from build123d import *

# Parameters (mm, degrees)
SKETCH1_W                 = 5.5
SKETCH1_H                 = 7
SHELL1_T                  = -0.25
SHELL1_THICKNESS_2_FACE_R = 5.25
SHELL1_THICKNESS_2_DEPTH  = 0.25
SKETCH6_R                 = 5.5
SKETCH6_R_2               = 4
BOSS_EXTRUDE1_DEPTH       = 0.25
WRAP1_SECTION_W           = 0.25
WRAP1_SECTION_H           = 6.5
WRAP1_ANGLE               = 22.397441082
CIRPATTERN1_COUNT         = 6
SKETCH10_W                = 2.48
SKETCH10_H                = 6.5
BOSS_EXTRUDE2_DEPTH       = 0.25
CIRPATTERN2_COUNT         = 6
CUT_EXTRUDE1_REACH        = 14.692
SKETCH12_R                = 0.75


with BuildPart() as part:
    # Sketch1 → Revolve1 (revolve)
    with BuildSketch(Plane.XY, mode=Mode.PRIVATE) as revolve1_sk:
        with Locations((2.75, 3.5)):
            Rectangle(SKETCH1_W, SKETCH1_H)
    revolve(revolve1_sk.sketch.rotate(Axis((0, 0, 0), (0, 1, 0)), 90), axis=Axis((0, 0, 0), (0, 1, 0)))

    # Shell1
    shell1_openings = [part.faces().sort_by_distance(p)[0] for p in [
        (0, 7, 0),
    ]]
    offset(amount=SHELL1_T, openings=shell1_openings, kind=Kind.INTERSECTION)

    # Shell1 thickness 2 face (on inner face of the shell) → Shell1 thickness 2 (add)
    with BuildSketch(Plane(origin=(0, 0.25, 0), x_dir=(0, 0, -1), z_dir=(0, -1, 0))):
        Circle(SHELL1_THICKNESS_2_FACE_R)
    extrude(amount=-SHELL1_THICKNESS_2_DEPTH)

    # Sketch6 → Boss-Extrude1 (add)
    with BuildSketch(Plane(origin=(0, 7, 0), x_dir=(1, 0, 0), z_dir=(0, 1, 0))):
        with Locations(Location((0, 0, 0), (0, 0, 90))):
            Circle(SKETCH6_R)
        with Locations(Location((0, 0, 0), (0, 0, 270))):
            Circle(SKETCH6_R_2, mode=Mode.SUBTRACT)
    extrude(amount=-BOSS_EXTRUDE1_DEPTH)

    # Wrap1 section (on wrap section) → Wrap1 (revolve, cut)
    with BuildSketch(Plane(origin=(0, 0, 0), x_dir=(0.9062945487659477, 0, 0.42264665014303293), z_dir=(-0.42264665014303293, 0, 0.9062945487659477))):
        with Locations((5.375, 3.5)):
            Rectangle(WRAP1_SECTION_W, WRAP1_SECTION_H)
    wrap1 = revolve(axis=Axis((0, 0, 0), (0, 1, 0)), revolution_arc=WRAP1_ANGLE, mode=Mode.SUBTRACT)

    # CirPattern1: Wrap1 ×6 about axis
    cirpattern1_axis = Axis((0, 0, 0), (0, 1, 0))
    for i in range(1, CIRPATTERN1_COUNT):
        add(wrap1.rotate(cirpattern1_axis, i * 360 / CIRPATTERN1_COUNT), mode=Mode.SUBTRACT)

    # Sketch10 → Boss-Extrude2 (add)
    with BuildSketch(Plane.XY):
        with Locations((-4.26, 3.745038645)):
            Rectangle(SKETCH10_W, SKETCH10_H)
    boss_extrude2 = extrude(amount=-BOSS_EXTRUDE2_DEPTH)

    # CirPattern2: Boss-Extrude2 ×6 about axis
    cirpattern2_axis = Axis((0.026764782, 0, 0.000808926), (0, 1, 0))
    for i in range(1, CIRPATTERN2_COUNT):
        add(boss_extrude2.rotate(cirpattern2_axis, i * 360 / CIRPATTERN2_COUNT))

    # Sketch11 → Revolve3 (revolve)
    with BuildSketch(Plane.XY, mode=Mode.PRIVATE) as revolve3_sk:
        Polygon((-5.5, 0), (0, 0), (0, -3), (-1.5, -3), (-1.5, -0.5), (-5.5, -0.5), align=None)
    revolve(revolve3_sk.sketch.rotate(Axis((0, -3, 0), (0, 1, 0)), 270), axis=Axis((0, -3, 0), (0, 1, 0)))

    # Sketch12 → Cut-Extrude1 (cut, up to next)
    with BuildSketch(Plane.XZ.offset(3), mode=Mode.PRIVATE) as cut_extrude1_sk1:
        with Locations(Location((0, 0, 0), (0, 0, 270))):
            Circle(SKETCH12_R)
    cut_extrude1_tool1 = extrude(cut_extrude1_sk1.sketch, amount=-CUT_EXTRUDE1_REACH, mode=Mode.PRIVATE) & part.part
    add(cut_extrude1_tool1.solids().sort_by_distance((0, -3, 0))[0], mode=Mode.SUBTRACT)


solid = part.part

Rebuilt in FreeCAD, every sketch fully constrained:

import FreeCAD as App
import Part
import Sketcher
from FreeCAD import Vector


def faces_at(feature, points):
    """Names of the faces that lie closest to the given points."""
    faces = feature.Shape.Faces
    near = lambda p: min(range(len(faces)), key=lambda i: faces[i].distToShape(Part.Vertex(*p))[0])
    return sorted({f"Face{near(p) + 1}" for p in points})

doc = App.newDocument("Part")
params = doc.addObject("Spreadsheet::Sheet", "Params")
for row, (alias, value) in enumerate([
    ("sketch1_height", "7 mm"),
    ("sketch1_width", "5.5 mm"),
    ("revolution_angle", "360 deg"),
    ("thickness_wall", "0.25 mm"),
    ("sketch2_diameter", "10.5 mm"),
    ("pad1_length", "0.25 mm"),
    ("sketch3_diameter", "11 mm"),
    ("sketch3_diameter2", "8 mm"),
    ("pad2_length", "0.25 mm"),
    ("sketch4_height", "6.5 mm"),
    ("sketch4_width", "0.25 mm"),
    ("groove_angle", "22.397441 deg"),
    ("sketch5_height", "6.5 mm"),
    ("sketch5_width", "2.48 mm"),
    ("pad3_length", "0.25 mm"),
    ("sketch6_width", "4 mm"),
    ("sketch6_height", "3 mm"),
    ("sketch6_width2", "5.5 mm"),
    ("sketch6_height2", "0.5 mm"),
    ("revolution2_angle", "360 deg"),
    ("sketch7_diameter", "1.5 mm"),
], start=1):
    params.set(f"A{row}", alias)
    params.set(f"B{row}", "=" + value)
    params.setAlias(f"B{row}", alias)

body = doc.addObject("PartDesign::Body", "Body")

sketch1 = body.newObject("Sketcher::SketchObject", "Sketch")
sketch1.AttachmentSupport = (doc.getObject("XY_Plane"), [""])
sketch1.MapMode = "FlatFace"
sketch1.addGeometry([
    Part.LineSegment(Vector(0, 7, 0), Vector(0, 0, 0)),
    Part.LineSegment(Vector(0, 0, 0), Vector(6, 0, 0)),
    Part.LineSegment(Vector(6, 0, 0), Vector(6, 7, 0)),
    Part.LineSegment(Vector(6, 7, 0), Vector(0, 7, 0)),
], False)
sketch1.addConstraint([
    Sketcher.Constraint("Coincident", 0, 2, 1, 1),
    Sketcher.Constraint("Coincident", 1, 2, 2, 1),
    Sketcher.Constraint("Coincident", 2, 2, 3, 1),
    Sketcher.Constraint("Coincident", 3, 2, 0, 1),
    Sketcher.Constraint("Vertical", 0),
    Sketcher.Constraint("Horizontal", 1),
    Sketcher.Constraint("Vertical", 2),
    Sketcher.Constraint("Horizontal", 3),
    Sketcher.Constraint("Coincident", 0, 2, -1, 1),
    Sketcher.Constraint("DistanceY", 0, 2, 0, 1, 7.0),
    Sketcher.Constraint("DistanceX", 1, 1, 1, 2, 5.5),
])
sketch1.setExpression("Constraints[9]", "Params.sketch1_height")
sketch1.setExpression("Constraints[10]", "Params.sketch1_width")
revolution = body.newObject("PartDesign::Revolution", "Revolution")
revolution.Profile = sketch1
revolution.ReferenceAxis = (sketch1, ["V_Axis"])
revolution.setExpression("Angle", "Params.revolution_angle")
doc.recompute()

thickness = body.newObject("PartDesign::Thickness", "Thickness")
thickness.Base = (revolution, faces_at(revolution, [(0, 7, 0)]))
thickness.setExpression("Value", "Params.thickness_wall")
thickness.Reversed = True
thickness.Join = "Intersection"

sketch2 = body.newObject("Sketcher::SketchObject", "Sketch001")
sketch2.AttachmentSupport = (doc.getObject("XZ_Plane"), [""])
sketch2.MapMode = "FlatFace"
sketch2.AttachmentOffset = App.Placement(Vector(0, 0, -0.25), App.Rotation())
sketch2.addGeometry(Part.Circle(Vector(0, 0, 0), Vector(0, 0, 1), 5), False)
sketch2.addConstraint([
    Sketcher.Constraint("Coincident", 0, 3, -1, 1),
    Sketcher.Constraint("Diameter", 0, 10.5),
])
sketch2.setExpression("Constraints[1]", "Params.sketch2_diameter")
pad1 = body.newObject("PartDesign::Pad", "Pad")
pad1.Profile = sketch2
pad1.setExpression("Length", "Params.pad1_length")
pad1.Reversed = True

sketch3 = body.newObject("Sketcher::SketchObject", "Sketch002")
sketch3.AttachmentSupport = (doc.getObject("XZ_Plane"), [""])
sketch3.MapMode = "FlatFace"
sketch3.AttachmentOffset = App.Placement(Vector(0, 0, -7), App.Rotation())
sketch3.addGeometry([
    Part.Circle(Vector(0, 0, 0), Vector(0, 0, 1), 5.5),
    Part.Circle(Vector(0, 0, 0), Vector(0, 0, 1), 4),
], False)
sketch3.addConstraint([
    Sketcher.Constraint("Coincident", 0, 3, -1, 1),
    Sketcher.Constraint("Coincident", 1, 3, -1, 1),
    Sketcher.Constraint("Diameter", 0, 11.0),
    Sketcher.Constraint("Diameter", 1, 8.0),
])
sketch3.setExpression("Constraints[2]", "Params.sketch3_diameter")
sketch3.setExpression("Constraints[3]", "Params.sketch3_diameter2")
pad2 = body.newObject("PartDesign::Pad", "Pad001")
pad2.Profile = sketch3
pad2.setExpression("Length", "Params.pad2_length")

sketch4 = body.newObject("Sketcher::SketchObject", "Sketch003")
sketch4.Placement = App.Placement(Vector(0, 0, 0), App.Rotation(Vector(0.906294549, 0, 0.42264665), Vector(0, 1, 0), Vector(-0.42264665, 0, 0.906294549), "ZXY"))
sketch4.addGeometry([
    Part.LineSegment(Vector(5.25, 6.75, 0), Vector(5.25, 0.25, 0)),
    Part.LineSegment(Vector(5.25, 0.25, 0), Vector(5.5, 0.25, 0)),
    Part.LineSegment(Vector(5.5, 0.25, 0), Vector(5.5, 6.75, 0)),
    Part.LineSegment(Vector(5.5, 6.75, 0), Vector(5.25, 6.75, 0)),
], False)
sketch4.addConstraint([
    Sketcher.Constraint("Coincident", 0, 2, 1, 1),
    Sketcher.Constraint("Coincident", 1, 2, 2, 1),
    Sketcher.Constraint("Coincident", 2, 2, 3, 1),
    Sketcher.Constraint("Coincident", 3, 2, 0, 1),
    Sketcher.Constraint("Vertical", 0),
    Sketcher.Constraint("Horizontal", 1),
    Sketcher.Constraint("Vertical", 2),
    Sketcher.Constraint("Horizontal", 3),
    Sketcher.Constraint("DistanceY", 0, 2, 0, 1, 6.5),
    Sketcher.Constraint("DistanceX", 1, 1, 1, 2, 0.25),
    Sketcher.Constraint("DistanceX", -1, 1, 1, 2, 5.5),
    Sketcher.Constraint("DistanceY", -1, 1, 0, 2, 0.25),
])
sketch4.setExpression("Constraints[8]", "Params.sketch4_height")
sketch4.setExpression("Constraints[9]", "Params.sketch4_width")
groove = body.newObject("PartDesign::Groove", "Groove")
groove.Profile = sketch4
groove.ReferenceAxis = (sketch4, ["V_Axis"])
groove.setExpression("Angle", "Params.groove_angle")
doc.recompute()

polarpattern = body.newObject("PartDesign::PolarPattern", "PolarPattern")
polarpattern.Originals = [groove]
polarpattern.Axis = (doc.getObject("Y_Axis"), [""])
polarpattern.Angle = 360
polarpattern.Occurrences = 6
body.Tip = polarpattern

sketch5 = body.newObject("Sketcher::SketchObject", "Sketch004")
sketch5.AttachmentSupport = (doc.getObject("XY_Plane"), [""])
sketch5.MapMode = "FlatFace"
sketch5.addGeometry([
    Part.LineSegment(Vector(-5.5, 7, 0), Vector(-5.5, 0.5, 0)),
    Part.LineSegment(Vector(-5.5, 0.5, 0), Vector(-3, 0.5, 0)),
    Part.LineSegment(Vector(-3, 0.5, 0), Vector(-3, 7, 0)),
    Part.LineSegment(Vector(-3, 7, 0), Vector(-5.5, 7, 0)),
], False)
sketch5.addConstraint([
    Sketcher.Constraint("Coincident", 0, 2, 1, 1),
    Sketcher.Constraint("Coincident", 1, 2, 2, 1),
    Sketcher.Constraint("Coincident", 2, 2, 3, 1),
    Sketcher.Constraint("Coincident", 3, 2, 0, 1),
    Sketcher.Constraint("Vertical", 0),
    Sketcher.Constraint("Horizontal", 1),
    Sketcher.Constraint("Vertical", 2),
    Sketcher.Constraint("Horizontal", 3),
    Sketcher.Constraint("DistanceY", 0, 2, 0, 1, 6.5),
    Sketcher.Constraint("DistanceX", 1, 1, 1, 2, 2.48),
    Sketcher.Constraint("DistanceX", 0, 2, -1, 1, 5.5),
    Sketcher.Constraint("DistanceY", -1, 1, 0, 2, 0.495039),
])
sketch5.setExpression("Constraints[8]", "Params.sketch5_height")
sketch5.setExpression("Constraints[9]", "Params.sketch5_width")
pad3 = body.newObject("PartDesign::Pad", "Pad002")
pad3.Profile = sketch5
pad3.setExpression("Length", "Params.pad3_length")
pad3.Reversed = True
doc.recompute()

datumline = body.newObject("PartDesign::Line", "DatumLine")
datumline.Placement = App.Placement(Vector(0.026765, 0, 0.000809), App.Rotation(Vector(0, 0, 1), Vector(0, 1, 0)))
polarpattern2 = body.newObject("PartDesign::PolarPattern", "PolarPattern001")
polarpattern2.Originals = [pad3]
polarpattern2.Axis = (datumline, [""])
polarpattern2.Angle = 360
polarpattern2.Occurrences = 6
body.Tip = polarpattern2

sketch6 = body.newObject("Sketcher::SketchObject", "Sketch005")
sketch6.AttachmentSupport = (doc.getObject("XY_Plane"), [""])
sketch6.MapMode = "FlatFace"
sketch6.addGeometry([
    Part.LineSegment(Vector(0, 0, 0), Vector(-5.5, 0, 0)),
    Part.LineSegment(Vector(-5.5, 0, 0), Vector(-5.5, -0.5, 0)),
    Part.LineSegment(Vector(-5.5, -0.5, 0), Vector(-1.5, -0.5, 0)),
    Part.LineSegment(Vector(-1.5, -0.5, 0), Vector(-1.5, -3, 0)),
    Part.LineSegment(Vector(-1.5, -3, 0), Vector(0, -3, 0)),
    Part.LineSegment(Vector(0, -3, 0), Vector(0, 0, 0)),
], False)
sketch6.addConstraint([
    Sketcher.Constraint("Coincident", 0, 2, 1, 1),
    Sketcher.Constraint("Coincident", 1, 2, 2, 1),
    Sketcher.Constraint("Coincident", 2, 2, 3, 1),
    Sketcher.Constraint("Coincident", 3, 2, 4, 1),
    Sketcher.Constraint("Coincident", 4, 2, 5, 1),
    Sketcher.Constraint("Coincident", 5, 2, 0, 1),
    Sketcher.Constraint("Horizontal", 0),
    Sketcher.Constraint("Vertical", 1),
    Sketcher.Constraint("Horizontal", 2),
    Sketcher.Constraint("Vertical", 3),
    Sketcher.Constraint("Horizontal", 4),
    Sketcher.Constraint("Vertical", 5),
    Sketcher.Constraint("Coincident", 5, 2, -1, 1),
    Sketcher.Constraint("DistanceX", 2, 1, 2, 2, 4.0),
    Sketcher.Constraint("DistanceY", 5, 1, 5, 2, 3.0),
    Sketcher.Constraint("DistanceX", 0, 2, 0, 1, 5.5),
    Sketcher.Constraint("DistanceY", 1, 2, 1, 1, 0.5),
])
sketch6.setExpression("Constraints[13]", "Params.sketch6_width")
sketch6.setExpression("Constraints[14]", "Params.sketch6_height")
sketch6.setExpression("Constraints[15]", "Params.sketch6_width2")
sketch6.setExpression("Constraints[16]", "Params.sketch6_height2")
revolution2 = body.newObject("PartDesign::Revolution", "Revolution001")
revolution2.Profile = sketch6
revolution2.ReferenceAxis = (sketch6, ["V_Axis"])
revolution2.setExpression("Angle", "Params.revolution2_angle")

sketch7 = body.newObject("Sketcher::SketchObject", "Sketch006")
sketch7.AttachmentSupport = (doc.getObject("XZ_Plane"), [""])
sketch7.MapMode = "FlatFace"
sketch7.AttachmentOffset = App.Placement(Vector(0, 0, 3), App.Rotation())
sketch7.addGeometry(Part.Circle(Vector(0, 0, 0), Vector(0, 0, 1), 0.8), False)
sketch7.addConstraint([
    Sketcher.Constraint("Coincident", 0, 3, -1, 1),
    Sketcher.Constraint("Diameter", 0, 1.5),
])
sketch7.setExpression("Constraints[1]", "Params.sketch7_diameter")
pocket1 = body.newObject("PartDesign::Pocket", "Pocket")
pocket1.Profile = sketch7
pocket1.Type = "UpToFirst"

doc.recompute()
